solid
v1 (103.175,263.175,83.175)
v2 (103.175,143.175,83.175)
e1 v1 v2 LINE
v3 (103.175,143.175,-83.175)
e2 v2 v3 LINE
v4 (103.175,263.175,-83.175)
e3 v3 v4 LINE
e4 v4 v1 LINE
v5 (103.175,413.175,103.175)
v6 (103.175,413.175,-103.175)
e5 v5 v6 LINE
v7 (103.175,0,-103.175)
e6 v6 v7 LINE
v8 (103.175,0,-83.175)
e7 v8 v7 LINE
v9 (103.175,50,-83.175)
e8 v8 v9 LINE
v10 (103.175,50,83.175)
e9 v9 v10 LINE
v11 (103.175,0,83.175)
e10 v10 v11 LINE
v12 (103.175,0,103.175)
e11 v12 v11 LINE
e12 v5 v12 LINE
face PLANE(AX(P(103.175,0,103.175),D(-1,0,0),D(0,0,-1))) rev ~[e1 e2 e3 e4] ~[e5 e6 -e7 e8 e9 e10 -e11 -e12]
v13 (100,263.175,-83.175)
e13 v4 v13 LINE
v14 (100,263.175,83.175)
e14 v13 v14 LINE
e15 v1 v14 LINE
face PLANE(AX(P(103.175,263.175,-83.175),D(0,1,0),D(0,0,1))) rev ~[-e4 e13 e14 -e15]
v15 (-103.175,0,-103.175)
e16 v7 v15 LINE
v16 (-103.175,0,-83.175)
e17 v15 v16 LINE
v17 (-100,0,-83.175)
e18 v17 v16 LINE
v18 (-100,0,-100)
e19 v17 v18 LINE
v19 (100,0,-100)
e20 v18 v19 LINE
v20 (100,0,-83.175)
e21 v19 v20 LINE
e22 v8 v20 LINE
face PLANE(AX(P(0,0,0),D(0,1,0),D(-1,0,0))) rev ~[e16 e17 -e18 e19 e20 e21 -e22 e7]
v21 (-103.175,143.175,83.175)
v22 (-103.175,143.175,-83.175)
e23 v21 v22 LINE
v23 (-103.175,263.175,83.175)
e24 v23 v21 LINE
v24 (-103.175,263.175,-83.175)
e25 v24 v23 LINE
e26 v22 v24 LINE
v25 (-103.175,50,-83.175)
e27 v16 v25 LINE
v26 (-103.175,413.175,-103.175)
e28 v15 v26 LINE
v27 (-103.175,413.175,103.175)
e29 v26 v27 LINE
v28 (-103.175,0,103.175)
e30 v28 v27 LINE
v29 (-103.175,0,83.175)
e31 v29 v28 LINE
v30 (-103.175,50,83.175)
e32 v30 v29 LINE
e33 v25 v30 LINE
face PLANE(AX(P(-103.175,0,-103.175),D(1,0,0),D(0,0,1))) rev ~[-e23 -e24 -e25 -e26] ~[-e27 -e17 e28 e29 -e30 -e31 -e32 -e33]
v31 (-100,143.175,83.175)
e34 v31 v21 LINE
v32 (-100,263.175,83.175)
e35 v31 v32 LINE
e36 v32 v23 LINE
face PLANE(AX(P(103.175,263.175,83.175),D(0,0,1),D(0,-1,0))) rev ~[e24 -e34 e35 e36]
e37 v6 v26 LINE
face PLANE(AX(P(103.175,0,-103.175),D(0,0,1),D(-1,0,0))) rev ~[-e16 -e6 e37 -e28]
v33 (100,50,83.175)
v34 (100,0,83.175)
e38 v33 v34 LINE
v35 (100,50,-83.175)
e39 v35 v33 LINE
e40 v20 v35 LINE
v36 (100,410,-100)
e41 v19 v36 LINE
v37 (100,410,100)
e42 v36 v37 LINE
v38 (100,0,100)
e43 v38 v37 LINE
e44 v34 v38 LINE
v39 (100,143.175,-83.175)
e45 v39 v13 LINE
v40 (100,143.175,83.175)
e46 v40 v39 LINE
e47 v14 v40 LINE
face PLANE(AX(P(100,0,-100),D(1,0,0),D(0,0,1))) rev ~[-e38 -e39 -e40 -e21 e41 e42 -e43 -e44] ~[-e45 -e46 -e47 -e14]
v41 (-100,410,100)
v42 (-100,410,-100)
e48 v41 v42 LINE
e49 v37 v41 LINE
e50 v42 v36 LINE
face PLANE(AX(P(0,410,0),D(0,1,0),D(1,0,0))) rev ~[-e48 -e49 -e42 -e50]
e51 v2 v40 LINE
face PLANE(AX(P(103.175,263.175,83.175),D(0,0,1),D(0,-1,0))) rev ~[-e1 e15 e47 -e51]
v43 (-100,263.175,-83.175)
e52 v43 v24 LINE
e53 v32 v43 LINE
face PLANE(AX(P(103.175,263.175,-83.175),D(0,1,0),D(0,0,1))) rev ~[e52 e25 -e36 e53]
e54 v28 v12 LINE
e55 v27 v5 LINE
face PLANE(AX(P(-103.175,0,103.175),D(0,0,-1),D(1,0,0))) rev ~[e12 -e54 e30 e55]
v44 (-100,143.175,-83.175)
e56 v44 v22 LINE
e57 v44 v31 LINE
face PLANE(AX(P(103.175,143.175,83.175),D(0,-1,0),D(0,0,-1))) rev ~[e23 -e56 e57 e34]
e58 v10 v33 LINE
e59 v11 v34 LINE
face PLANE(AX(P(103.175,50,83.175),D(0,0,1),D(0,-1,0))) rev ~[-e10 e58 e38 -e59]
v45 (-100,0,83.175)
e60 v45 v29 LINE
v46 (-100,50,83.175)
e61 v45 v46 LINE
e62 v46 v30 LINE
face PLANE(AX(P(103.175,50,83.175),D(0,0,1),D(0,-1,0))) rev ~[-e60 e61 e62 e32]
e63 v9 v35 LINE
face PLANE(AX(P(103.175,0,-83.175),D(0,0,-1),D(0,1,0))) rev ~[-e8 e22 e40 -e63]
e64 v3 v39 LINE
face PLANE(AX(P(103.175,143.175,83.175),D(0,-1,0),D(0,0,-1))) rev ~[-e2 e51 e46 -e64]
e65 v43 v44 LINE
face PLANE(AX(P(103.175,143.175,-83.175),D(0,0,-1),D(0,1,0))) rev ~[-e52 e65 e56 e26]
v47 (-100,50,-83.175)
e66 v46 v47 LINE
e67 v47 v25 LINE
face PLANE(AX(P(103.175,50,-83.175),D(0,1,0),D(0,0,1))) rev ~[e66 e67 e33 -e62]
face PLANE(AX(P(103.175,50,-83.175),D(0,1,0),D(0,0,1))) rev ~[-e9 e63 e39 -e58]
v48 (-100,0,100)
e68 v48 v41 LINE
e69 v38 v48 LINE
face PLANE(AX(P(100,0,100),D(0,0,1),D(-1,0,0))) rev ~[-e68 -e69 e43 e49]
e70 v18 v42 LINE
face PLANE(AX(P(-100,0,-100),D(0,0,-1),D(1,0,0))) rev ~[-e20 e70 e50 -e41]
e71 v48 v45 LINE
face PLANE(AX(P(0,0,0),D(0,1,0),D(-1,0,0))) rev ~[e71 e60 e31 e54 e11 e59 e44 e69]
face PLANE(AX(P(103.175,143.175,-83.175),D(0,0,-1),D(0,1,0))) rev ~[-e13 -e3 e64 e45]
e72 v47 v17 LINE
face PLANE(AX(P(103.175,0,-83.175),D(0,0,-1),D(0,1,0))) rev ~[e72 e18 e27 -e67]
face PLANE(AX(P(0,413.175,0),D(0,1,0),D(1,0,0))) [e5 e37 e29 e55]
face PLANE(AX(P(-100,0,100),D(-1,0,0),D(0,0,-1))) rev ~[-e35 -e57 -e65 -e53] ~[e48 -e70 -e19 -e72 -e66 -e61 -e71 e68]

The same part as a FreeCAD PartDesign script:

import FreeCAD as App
import Part
import Sketcher

V = App.Vector
Q = App.Units.Quantity

doc = App.newDocument("Part")
body = doc.addObject("PartDesign::Body", "Body")

# Sketch on XZ plane
sketch1 = body.newObject("Sketcher::SketchObject", "Sketch")
sketch1.AttachmentSupport = (doc.getObject("XZ_Plane"), [""])
sketch1.MapMode = "FlatFace"
sketch1.addGeometry([
    Part.LineSegment(V(103, -103, 0), V(-103, -103, 0)),  # 0
    Part.LineSegment(V(-103, -103, 0), V(-103, 103, 0)),  # 1
    Part.LineSegment(V(-103, 103, 0), V(103, 103, 0)),  # 2
    Part.LineSegment(V(103, 103, 0), V(103, -103, 0)),  # 3
    Part.LineSegment(V(100, -100, 0), V(100, 100, 0)),  # 4
    Part.LineSegment(V(100, 100, 0), V(-100, 100, 0)),  # 5
    Part.LineSegment(V(-100, 100, 0), V(-100, -100, 0)),  # 6
    Part.LineSegment(V(-100, -100, 0), V(100, -100, 0)),  # 7
], False)
sketch1.addConstraint([
    Sketcher.Constraint("Coincident", 0, 2, 1, 1),
    Sketcher.Constraint("Coincident", 1, 2, 2, 1),
    Sketcher.Constraint("Coincident", 2, 2, 3, 1),
    Sketcher.Constraint("Coincident", 3, 2, 0, 1),
    Sketcher.Constraint("Coincident", 4, 2, 5, 1),
    Sketcher.Constraint("Coincident", 5, 2, 6, 1),
    Sketcher.Constraint("Coincident", 6, 2, 7, 1),
    Sketcher.Constraint("Coincident", 7, 2, 4, 1),
    Sketcher.Constraint("Horizontal", 0),
    Sketcher.Constraint("Vertical", 1),
    Sketcher.Constraint("Horizontal", 2),
    Sketcher.Constraint("Vertical", 3),
    Sketcher.Constraint("Vertical", 4),
    Sketcher.Constraint("Horizontal", 5),
    Sketcher.Constraint("Vertical", 6),
    Sketcher.Constraint("Horizontal", 7),
    Sketcher.Constraint("Symmetric", 0, 2, 2, 2, -1, 1),
    Sketcher.Constraint("Symmetric", 4, 2, 6, 2, -1, 1),
    Sketcher.Constraint("Equal", 2, 1),
    Sketcher.Constraint("Equal", 7, 4),
    Sketcher.Constraint("DistanceX", 5, 2, 5, 1, Q("200 mm")),
    Sketcher.Constraint("DistanceX", 4, 2, 2, 2, Q("3.175 mm")),
])
pad1 = body.newObject("PartDesign::Pad", "Pad")
pad1.Profile = sketch1
pad1.Length = 410
pad1.Reversed = True

# Sketch on XZ plane
sketch2 = body.newObject("Sketcher::SketchObject", "Sketch001")
sketch2.AttachmentSupport = (doc.getObject("XZ_Plane"), [""])
sketch2.MapMode = "FlatFace"
sketch2.AttachmentOffset = App.Placement(V(0, 0, -410), App.Rotation())
sketch2.addGeometry([
    Part.LineSegment(V(103, -103, 0), V(-103, -103, 0)),
    Part.LineSegment(V(-103, -103, 0), V(-103, 103, 0)),
    Part.LineSegment(V(-103, 103, 0), V(103, 103, 0)),
    Part.LineSegment(V(103, 103, 0), V(103, -103, 0)),
], False)
sketch2.addConstraint([
    Sketcher.Constraint("Coincident", 0, 2, 1, 1),
    Sketcher.Constraint("Coincident", 1, 2, 2, 1),
    Sketcher.Constraint("Coincident", 2, 2, 3, 1),
    Sketcher.Constraint("Coincident", 3, 2, 0, 1),
    Sketcher.Constraint("Horizontal", 0),
    Sketcher.Constraint("Vertical", 1),
    Sketcher.Constraint("Horizontal", 2),
    Sketcher.Constraint("Vertical", 3),
    Sketcher.Constraint("Symmetric", 0, 2, 2, 2, -1, 1),
    Sketcher.Constraint("Equal", 2, 1),
    Sketcher.Constraint("DistanceX", 0, 2, 0, 1, Q("206.35 mm")),
])
pad2 = body.newObject("PartDesign::Pad", "Pad001")
pad2.Profile = sketch2
pad2.Length = 3.175
pad2.Reversed = True

# Sketch on YZ plane
sketch3 = body.newObject("Sketcher::SketchObject", "Sketch002")
sketch3.AttachmentSupport = (doc.getObject("YZ_Plane"), [""])
sketch3.MapMode = "FlatFace"
sketch3.AttachmentOffset = App.Placement(V(0, 0, 103.175), App.Rotation())
sketch3.addGeometry([
    Part.LineSegment(V(50, 83, 0), V(0, 83, 0)),  # 0
    Part.LineSegment(V(0, 83, 0), V(0, -83, 0)),  # 1
    Part.LineSegment(V(0, -83, 0), V(50, -83, 0)),  # 2
    Part.LineSegment(V(50, -83, 0), V(50, 83, 0)),  # 3
    Part.LineSegment(V(263, -83, 0), V(263, 83, 0)),  # 4
    Part.LineSegment(V(263, 83, 0), V(143, 83, 0)),  # 5
    Part.LineSegment(V(143, 83, 0), V(143, -83, 0)),  # 6
    Part.LineSegment(V(143, -83, 0), V(263, -83, 0)),  # 7
], False)
sketch3.addConstraint([
    Sketcher.Constraint("Coincident", 0, 2, 1, 1),
    Sketcher.Constraint("Coincident", 1, 2, 2, 1),
    Sketcher.Constraint("Coincident", 2, 2, 3, 1),
    Sketcher.Constraint("Coincident", 3, 2, 0, 1),
    Sketcher.Constraint("Coincident", 4, 2, 5, 1),
    Sketcher.Constraint("Coincident", 5, 2, 6, 1),
    Sketcher.Constraint("Coincident", 6, 2, 7, 1),
    Sketcher.Constraint("Coincident", 7, 2, 4, 1),
    Sketcher.Constraint("Horizontal", 0),
    Sketcher.Constraint("Vertical", 1),
    Sketcher.Constraint("Horizontal", 2),
    Sketcher.Constraint("Vertical", 3),
    Sketcher.Constraint("Vertical", 4),
    Sketcher.Constraint("Horizontal", 5),
    Sketcher.Constraint("Vertical", 6),
    Sketcher.Constraint("Horizontal", 7),
    Sketcher.Constraint("Symmetric", 0, 2, 1, 2, -1, 1),
    Sketcher.Constraint("Horizontal", 3, 2, 4, 2),
    Sketcher.Constraint("Horizontal", 2, 2, 6, 2),
    Sketcher.Constraint("DistanceX", 0, 2, 0, 1, Q("50 mm")),
    Sketcher.Constraint("DistanceX", 5, 2, 5, 1, Q("120 mm")),
    Sketcher.Constraint("DistanceY", 1, 2, 1, 1, Q("166.35 mm")),
    Sketcher.Constraint("DistanceX", -1, 1, 4, 2, Q("263.175 mm")),
])
pocket1 = body.newObject("PartDesign::Pocket", "Pocket")
pocket1.Profile = sketch3
pocket1.Length = 206.35

doc.recompute()
